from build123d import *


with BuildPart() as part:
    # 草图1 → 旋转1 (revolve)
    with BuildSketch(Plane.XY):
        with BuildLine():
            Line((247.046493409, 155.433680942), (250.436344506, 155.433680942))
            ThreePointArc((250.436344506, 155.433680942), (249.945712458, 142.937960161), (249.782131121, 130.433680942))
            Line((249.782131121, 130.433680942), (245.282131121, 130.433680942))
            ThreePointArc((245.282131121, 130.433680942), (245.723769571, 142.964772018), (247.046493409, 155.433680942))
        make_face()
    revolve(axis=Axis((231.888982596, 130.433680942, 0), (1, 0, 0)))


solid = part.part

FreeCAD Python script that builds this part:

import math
import FreeCAD as App
import Part
import Sketcher
Q = App.Units.Quantity

doc = App.newDocument("Part")
body = doc.addObject("PartDesign::Body", "Body")

# Sketch on XY plane
sketch1 = body.newObject("Sketcher::SketchObject", "Sketch")
sketch1.AttachmentSupport = (doc.getObject("XY_Plane"), [""])
sketch1.MapMode = "FlatFace"
sketch1.addGeometry(Part.LineSegment(App.Vector(250.4, 155.4, 0), App.Vector(247, 155.4, 0)), False)
sketch1.addGeometry(Part.ArcOfCircle(Part.Circle(App.Vector(423.3, 130.4, 0), App.Vector(0, 0, 1), 178), math.radians(171.93), math.radians(180)), False)
sketch1.addGeometry(Part.LineSegment(App.Vector(245.3, 130.4, 0), App.Vector(249.8, 130.4, 0)), False)
sketch1.addGeometry(Part.ArcOfCircle(Part.Circle(App.Vector(727.8, 130.4, 0), App.Vector(0, 0, 1), 478), math.radians(177), math.radians(180)), False)
sketch1.addGeometry(Part.LineSegment(App.Vector(245.3, 130.4, 0), App.Vector(727.8, 130.4, 0)), True)  # axis
sketch1.addConstraint(Sketcher.Constraint("Coincident", 0, 2, 1, 1))
sketch1.addConstraint(Sketcher.Constraint("Coincident", 1, 2, 2, 1))
sketch1.addConstraint(Sketcher.Constraint("Coincident", 2, 2, 3, 2))
sketch1.addConstraint(Sketcher.Constraint("Coincident", 3, 1, 0, 1))
sketch1.addConstraint(Sketcher.Constraint("Horizontal", 0))
sketch1.addConstraint(Sketcher.Constraint("Horizontal", 2))
sketch1.addConstraint(Sketcher.Constraint("Horizontal", 4))
sketch1.addConstraint(Sketcher.Constraint("Coincident", 4, 1, 1, 2))
sketch1.addConstraint(Sketcher.Constraint("Coincident", 4, 2, 3, 3))
sketch1.addConstraint(Sketcher.Constraint("Horizontal", 1, 3, 3, 3))
sketch1.addConstraint(Sketcher.Constraint("Radius", 1, Q("178 mm")))
sketch1.addConstraint(Sketcher.Constraint("Radius", 3, Q("478 mm")))
sketch1.addConstraint(Sketcher.Constraint("DistanceX", 2, 1, 2, 2, Q("4.5 mm")))
sketch1.addConstraint(Sketcher.Constraint("DistanceY", 1, 3, 0, 2, Q("25 mm")))
sketch1.addConstraint(Sketcher.Constraint("DistanceX", -1, 1, 1, 3, Q("423.282131 mm")))
sketch1.addConstraint(Sketcher.Constraint("DistanceY", -1, 1, 1, 3, Q("130.433681 mm")))
revolution = body.newObject("PartDesign::Revolution", "Revolution")
revolution.Profile = sketch1
revolution.ReferenceAxis = (sketch1, ["Axis0"])
revolution.Angle = 360

doc.recompute()
